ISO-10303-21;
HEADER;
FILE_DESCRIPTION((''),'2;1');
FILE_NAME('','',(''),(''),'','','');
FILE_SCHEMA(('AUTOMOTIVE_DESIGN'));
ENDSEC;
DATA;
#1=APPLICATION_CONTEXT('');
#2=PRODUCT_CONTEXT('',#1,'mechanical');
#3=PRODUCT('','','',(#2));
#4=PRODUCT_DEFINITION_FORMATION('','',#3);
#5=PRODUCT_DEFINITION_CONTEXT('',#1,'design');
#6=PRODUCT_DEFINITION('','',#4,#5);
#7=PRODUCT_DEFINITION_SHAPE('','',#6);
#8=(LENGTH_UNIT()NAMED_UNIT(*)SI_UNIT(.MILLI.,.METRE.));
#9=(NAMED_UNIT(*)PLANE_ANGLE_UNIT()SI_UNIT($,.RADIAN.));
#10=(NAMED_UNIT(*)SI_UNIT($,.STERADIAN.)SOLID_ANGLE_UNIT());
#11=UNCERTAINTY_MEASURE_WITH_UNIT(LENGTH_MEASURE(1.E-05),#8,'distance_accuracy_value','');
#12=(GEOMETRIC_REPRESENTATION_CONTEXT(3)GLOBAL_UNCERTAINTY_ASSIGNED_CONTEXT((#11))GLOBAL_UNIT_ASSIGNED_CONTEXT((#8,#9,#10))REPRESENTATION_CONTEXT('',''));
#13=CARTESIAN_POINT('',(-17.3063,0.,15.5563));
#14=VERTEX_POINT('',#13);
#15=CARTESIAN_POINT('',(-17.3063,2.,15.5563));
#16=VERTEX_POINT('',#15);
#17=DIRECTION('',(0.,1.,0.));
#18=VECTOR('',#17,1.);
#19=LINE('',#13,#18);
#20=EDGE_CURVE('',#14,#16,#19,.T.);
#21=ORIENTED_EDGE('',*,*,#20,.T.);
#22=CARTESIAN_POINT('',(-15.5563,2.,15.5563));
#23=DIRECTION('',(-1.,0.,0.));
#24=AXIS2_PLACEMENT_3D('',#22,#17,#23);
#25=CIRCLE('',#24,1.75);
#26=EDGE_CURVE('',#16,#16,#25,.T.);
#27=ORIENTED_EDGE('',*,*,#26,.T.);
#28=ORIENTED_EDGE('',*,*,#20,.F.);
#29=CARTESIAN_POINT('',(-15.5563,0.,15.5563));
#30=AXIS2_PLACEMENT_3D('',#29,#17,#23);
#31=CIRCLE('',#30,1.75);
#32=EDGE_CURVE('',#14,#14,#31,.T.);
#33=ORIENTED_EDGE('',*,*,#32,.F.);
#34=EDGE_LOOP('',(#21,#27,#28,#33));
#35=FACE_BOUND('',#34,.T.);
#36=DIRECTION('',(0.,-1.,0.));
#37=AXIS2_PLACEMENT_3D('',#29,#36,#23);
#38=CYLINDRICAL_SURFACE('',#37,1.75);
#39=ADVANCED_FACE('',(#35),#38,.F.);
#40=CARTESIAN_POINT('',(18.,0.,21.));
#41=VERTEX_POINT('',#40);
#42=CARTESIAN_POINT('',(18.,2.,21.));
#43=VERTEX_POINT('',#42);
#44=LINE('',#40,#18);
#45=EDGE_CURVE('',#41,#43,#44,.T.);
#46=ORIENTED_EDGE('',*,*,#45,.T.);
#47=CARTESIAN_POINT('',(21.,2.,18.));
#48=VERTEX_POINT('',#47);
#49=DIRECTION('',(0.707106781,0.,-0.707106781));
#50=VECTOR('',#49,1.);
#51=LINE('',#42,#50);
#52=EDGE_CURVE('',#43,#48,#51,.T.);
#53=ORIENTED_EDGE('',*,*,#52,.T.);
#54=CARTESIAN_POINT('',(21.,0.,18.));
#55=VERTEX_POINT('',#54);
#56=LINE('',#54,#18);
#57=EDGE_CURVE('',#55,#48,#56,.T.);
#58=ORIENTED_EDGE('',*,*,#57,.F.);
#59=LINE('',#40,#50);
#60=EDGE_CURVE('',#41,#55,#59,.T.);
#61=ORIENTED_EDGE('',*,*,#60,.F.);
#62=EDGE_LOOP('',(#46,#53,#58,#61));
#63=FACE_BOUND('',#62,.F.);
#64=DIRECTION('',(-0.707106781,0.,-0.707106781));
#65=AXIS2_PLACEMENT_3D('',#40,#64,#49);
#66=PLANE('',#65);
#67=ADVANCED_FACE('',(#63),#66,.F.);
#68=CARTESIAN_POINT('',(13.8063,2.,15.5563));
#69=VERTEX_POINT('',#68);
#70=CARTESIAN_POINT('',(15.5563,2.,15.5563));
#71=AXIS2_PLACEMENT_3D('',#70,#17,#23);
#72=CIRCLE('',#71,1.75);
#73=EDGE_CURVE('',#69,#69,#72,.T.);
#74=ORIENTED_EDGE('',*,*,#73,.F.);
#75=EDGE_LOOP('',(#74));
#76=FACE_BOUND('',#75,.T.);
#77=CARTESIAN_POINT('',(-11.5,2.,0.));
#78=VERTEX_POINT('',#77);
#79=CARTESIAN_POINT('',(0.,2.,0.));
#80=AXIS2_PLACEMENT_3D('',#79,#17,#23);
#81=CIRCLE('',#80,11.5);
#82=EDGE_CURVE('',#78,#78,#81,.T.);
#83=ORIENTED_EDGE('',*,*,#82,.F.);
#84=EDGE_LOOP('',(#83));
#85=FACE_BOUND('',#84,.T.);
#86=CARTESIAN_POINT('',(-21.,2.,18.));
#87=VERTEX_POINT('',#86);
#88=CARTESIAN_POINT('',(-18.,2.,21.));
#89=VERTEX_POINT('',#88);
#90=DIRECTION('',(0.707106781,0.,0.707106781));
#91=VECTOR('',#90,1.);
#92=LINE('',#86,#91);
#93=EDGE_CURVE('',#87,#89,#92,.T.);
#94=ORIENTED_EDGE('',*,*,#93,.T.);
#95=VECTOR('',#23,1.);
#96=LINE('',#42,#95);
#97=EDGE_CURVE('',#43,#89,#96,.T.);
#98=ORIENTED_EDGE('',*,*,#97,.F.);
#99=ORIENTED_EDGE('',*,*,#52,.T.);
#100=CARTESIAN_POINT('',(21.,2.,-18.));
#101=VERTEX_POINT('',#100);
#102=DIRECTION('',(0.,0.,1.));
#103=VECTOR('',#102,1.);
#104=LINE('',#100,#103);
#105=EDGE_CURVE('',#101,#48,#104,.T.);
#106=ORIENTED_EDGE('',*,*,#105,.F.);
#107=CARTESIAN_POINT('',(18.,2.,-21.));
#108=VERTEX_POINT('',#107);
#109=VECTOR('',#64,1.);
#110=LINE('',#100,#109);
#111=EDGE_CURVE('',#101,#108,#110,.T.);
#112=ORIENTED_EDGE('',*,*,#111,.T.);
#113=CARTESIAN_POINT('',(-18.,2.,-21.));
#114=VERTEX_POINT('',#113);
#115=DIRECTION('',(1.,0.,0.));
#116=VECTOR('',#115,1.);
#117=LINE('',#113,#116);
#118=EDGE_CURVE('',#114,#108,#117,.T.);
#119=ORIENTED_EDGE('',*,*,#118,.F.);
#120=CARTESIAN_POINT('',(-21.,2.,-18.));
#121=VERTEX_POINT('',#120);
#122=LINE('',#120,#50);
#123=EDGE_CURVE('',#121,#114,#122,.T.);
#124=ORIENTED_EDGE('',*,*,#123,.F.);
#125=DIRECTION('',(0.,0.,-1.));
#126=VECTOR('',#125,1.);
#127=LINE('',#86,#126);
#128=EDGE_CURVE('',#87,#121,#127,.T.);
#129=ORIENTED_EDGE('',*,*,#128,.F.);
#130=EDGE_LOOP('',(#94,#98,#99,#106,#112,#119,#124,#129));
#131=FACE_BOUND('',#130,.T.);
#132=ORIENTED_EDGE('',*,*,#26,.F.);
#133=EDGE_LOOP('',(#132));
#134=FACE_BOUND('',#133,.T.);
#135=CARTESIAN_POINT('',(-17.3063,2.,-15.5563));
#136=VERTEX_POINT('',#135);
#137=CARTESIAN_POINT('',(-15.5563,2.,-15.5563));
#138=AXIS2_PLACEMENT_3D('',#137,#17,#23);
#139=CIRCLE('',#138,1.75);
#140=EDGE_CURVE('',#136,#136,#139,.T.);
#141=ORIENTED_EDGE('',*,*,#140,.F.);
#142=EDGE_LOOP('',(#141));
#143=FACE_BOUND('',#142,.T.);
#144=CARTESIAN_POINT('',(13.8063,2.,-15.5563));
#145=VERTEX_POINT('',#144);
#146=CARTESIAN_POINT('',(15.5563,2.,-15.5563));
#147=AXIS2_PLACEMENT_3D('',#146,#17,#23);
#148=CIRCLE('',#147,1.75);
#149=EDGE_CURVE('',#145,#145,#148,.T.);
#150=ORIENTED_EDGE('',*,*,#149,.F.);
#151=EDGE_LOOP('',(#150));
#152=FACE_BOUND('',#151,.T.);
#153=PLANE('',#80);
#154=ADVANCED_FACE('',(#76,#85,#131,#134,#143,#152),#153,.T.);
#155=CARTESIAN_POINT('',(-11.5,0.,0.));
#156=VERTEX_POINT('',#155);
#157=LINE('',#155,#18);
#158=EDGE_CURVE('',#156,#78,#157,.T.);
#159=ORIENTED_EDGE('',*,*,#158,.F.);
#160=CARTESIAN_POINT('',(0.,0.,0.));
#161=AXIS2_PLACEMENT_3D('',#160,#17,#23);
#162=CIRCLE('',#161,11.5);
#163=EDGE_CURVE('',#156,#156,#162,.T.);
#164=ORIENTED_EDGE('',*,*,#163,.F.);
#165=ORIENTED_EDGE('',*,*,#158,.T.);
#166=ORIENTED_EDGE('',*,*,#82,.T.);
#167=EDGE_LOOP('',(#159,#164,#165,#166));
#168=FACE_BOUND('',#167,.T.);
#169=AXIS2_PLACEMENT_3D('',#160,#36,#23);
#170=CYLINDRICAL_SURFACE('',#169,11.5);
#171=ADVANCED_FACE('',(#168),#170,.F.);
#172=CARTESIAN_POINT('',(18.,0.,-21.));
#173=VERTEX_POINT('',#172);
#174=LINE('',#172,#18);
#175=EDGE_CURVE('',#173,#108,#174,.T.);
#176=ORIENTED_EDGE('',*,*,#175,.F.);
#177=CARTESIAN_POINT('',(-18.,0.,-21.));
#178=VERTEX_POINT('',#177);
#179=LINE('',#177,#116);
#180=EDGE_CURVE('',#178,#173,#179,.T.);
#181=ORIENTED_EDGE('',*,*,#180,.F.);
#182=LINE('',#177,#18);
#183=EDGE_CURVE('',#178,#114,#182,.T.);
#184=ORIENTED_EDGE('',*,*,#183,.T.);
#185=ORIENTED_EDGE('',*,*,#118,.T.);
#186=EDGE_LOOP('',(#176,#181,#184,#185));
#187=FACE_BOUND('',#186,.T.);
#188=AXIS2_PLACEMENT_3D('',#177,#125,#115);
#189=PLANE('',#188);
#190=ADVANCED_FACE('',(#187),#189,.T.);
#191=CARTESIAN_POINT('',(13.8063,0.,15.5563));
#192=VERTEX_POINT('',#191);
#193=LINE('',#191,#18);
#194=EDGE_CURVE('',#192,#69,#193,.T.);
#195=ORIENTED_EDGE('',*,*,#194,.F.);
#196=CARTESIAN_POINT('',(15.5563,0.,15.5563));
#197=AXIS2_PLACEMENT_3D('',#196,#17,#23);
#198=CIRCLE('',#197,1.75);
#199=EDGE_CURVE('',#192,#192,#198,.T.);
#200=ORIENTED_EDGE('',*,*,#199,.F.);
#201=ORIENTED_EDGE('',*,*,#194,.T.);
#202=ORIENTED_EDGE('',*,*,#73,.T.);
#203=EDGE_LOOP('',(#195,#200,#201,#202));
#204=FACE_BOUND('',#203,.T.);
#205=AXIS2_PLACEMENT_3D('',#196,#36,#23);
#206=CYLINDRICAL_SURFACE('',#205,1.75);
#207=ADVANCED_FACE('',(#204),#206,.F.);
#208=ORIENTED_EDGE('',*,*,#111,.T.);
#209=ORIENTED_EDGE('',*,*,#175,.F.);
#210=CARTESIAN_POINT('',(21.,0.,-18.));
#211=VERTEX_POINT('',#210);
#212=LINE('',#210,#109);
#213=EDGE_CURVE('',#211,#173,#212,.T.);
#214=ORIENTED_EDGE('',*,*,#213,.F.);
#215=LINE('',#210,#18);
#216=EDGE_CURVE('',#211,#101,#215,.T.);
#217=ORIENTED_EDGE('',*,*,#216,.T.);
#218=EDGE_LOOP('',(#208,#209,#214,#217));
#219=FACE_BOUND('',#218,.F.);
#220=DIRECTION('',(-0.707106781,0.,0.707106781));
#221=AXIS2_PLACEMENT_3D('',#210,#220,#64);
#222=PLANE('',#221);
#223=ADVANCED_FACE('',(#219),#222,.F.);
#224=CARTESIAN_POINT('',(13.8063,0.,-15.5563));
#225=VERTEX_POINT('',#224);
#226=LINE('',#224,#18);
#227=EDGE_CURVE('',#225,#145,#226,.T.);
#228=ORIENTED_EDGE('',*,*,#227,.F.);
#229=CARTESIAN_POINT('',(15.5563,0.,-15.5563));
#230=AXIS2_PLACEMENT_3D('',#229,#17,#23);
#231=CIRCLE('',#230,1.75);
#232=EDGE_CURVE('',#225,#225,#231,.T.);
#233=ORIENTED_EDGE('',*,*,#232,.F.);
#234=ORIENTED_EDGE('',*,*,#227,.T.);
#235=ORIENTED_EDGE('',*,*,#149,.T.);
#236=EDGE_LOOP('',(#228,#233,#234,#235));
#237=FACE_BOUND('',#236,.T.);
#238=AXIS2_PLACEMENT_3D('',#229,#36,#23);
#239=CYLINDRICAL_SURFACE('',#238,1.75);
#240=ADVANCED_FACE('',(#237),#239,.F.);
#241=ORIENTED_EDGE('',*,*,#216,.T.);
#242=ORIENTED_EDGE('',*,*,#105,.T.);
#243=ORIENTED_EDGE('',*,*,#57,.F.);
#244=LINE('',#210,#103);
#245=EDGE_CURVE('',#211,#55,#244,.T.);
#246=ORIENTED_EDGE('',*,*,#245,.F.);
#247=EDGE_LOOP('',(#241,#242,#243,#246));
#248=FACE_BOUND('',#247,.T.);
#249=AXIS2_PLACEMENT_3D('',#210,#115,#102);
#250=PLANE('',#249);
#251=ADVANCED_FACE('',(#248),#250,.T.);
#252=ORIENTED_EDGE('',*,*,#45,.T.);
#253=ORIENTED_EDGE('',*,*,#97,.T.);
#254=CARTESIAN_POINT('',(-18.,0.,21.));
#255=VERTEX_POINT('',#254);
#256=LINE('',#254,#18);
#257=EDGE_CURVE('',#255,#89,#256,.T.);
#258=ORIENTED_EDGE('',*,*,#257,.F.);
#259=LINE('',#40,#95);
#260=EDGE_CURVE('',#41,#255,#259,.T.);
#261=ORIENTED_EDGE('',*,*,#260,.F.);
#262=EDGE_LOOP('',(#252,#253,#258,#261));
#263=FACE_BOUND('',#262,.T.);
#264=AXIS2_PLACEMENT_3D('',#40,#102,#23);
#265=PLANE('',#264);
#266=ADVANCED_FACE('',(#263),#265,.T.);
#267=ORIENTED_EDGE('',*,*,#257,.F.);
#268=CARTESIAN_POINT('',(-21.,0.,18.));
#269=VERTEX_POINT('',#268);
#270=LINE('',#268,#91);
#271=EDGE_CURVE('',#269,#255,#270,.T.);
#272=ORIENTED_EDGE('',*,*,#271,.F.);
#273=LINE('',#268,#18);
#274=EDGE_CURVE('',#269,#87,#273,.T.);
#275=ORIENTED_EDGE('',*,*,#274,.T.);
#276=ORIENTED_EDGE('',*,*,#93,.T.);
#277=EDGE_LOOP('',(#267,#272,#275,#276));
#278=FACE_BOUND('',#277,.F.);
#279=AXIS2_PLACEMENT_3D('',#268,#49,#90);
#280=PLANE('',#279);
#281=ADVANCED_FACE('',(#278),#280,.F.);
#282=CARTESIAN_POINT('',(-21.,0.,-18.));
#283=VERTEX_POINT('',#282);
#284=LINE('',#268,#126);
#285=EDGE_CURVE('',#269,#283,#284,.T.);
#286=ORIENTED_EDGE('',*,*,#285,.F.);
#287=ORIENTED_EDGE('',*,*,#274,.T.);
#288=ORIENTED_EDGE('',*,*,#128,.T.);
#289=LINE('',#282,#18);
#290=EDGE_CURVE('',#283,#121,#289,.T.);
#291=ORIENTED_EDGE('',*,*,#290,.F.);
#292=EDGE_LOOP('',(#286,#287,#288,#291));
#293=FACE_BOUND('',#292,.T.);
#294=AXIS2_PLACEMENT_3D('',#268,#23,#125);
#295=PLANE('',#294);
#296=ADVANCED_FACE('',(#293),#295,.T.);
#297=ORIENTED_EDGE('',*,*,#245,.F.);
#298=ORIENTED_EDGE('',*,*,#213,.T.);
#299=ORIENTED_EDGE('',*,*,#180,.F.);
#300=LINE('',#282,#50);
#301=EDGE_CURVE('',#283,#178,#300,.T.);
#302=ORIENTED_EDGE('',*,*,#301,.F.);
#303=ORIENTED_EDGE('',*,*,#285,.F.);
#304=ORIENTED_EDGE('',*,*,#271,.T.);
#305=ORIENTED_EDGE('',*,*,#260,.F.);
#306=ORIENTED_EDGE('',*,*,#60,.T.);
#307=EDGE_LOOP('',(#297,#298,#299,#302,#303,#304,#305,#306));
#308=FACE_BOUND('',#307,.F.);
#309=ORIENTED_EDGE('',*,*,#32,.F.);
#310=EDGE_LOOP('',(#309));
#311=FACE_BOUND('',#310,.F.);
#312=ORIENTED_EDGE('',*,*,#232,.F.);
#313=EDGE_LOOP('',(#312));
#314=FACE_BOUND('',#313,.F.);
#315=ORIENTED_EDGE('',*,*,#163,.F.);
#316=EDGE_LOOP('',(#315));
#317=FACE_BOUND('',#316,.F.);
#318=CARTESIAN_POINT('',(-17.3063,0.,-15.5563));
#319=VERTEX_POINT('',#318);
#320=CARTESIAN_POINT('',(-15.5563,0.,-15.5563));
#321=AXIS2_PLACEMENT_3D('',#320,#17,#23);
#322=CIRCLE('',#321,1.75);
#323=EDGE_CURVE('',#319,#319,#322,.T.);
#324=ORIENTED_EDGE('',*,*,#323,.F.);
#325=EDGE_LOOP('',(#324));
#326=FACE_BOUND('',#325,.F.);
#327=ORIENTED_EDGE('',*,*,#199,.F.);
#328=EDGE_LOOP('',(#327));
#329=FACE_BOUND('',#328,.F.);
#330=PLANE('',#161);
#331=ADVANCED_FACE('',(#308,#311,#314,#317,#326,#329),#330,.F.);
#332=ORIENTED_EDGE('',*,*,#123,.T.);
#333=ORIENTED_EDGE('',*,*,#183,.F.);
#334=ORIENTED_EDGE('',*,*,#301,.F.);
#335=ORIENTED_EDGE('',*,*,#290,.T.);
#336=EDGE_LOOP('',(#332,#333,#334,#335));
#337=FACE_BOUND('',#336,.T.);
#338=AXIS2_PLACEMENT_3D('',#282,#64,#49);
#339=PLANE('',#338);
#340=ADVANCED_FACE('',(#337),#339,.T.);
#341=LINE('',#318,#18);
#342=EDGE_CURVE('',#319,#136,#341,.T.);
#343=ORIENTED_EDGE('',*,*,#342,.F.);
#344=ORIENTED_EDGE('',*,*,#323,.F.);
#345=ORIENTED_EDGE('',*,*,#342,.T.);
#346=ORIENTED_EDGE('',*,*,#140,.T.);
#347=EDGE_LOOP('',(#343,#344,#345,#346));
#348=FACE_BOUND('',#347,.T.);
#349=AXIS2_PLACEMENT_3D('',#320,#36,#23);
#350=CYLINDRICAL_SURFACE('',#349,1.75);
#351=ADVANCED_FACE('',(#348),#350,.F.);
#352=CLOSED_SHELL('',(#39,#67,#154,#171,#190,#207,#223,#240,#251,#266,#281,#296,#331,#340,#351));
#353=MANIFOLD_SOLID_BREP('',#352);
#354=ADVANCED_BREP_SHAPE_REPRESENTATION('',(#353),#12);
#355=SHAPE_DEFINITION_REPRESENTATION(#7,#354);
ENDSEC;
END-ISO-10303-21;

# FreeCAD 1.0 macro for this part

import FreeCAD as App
import Part
import Sketcher

V = App.Vector

doc = App.newDocument("Part")
body = doc.addObject("PartDesign::Body", "Body")

# Sketch on XZ plane
sketch1 = body.newObject("Sketcher::SketchObject", "Sketch")
sketch1.AttachmentSupport = (doc.getObject("XZ_Plane"), [""])
sketch1.MapMode = "FlatFace"
sketch1.addGeometry(Part.LineSegment(V(18, -21, 0), V(-18, -21, 0)), False)
sketch1.addGeometry(Part.LineSegment(V(-18, -21, 0), V(-21, -18, 0)), False)
sketch1.addGeometry(Part.LineSegment(V(-21, -18, 0), V(-21, 18, 0)), False)
sketch1.addGeometry(Part.LineSegment(V(-21, 18, 0), V(-18, 21, 0)), False)
sketch1.addGeometry(Part.LineSegment(V(-18, 21, 0), V(18, 21, 0)), False)
sketch1.addGeometry(Part.LineSegment(V(18, 21, 0), V(21, 18, 0)), False)
sketch1.addGeometry(Part.LineSegment(V(21, 18, 0), V(21, -18, 0)), False)
sketch1.addGeometry(Part.LineSegment(V(21, -18, 0), V(18, -21, 0)), False)
sketch1.addGeometry(Part.Circle(V(15.6, -15.6, 0), V(0, 0, 1), 1.8), False)
sketch1.addGeometry(Part.Circle(V(-15.6, -15.6, 0), V(0, 0, 1), 1.8), False)
sketch1.addGeometry(Part.Circle(V(15.6, 15.6, 0), V(0, 0, 1), 1.8), False)
sketch1.addGeometry(Part.Circle(V(0, 0, 0), V(0, 0, 1), 11.5), False)
sketch1.addGeometry(Part.Circle(V(-15.6, 15.6, 0), V(0, 0, 1), 1.8), False)
sketch1.addConstraint(Sketcher.Constraint("Coincident", 0, 2, 1, 1))
sketch1.addConstraint(Sketcher.Constraint("Coincident", 1, 2, 2, 1))
sketch1.addConstraint(Sketcher.Constraint("Coincident", 2, 2, 3, 1))
sketch1.addConstraint(Sketcher.Constraint("Coincident", 3, 2, 4, 1))
sketch1.addConstraint(Sketcher.Constraint("Coincident", 4, 2, 5, 1))
sketch1.addConstraint(Sketcher.Constraint("Coincident", 5, 2, 6, 1))
sketch1.addConstraint(Sketcher.Constraint("Coincident", 6, 2, 7, 1))
sketch1.addConstraint(Sketcher.Constraint("Coincident", 7, 2, 0, 1))
sketch1.addConstraint(Sketcher.Constraint("Horizontal", 0))
sketch1.addConstraint(Sketcher.Constraint("Vertical", 2))
sketch1.addConstraint(Sketcher.Constraint("Horizontal", 4))
sketch1.addConstraint(Sketcher.Constraint("Vertical", 6))
sketch1.addConstraint(Sketcher.Constraint("Coincident", 11, 3, -1, 1))
sketch1.addConstraint(Sketcher.Constraint("Equal", 8, 9))
sketch1.addConstraint(Sketcher.Constraint("Equal", 9, 10))
sketch1.addConstraint(Sketcher.Constraint("Equal", 10, 12))
sketch1.addConstraint(Sketcher.Constraint("Symmetric", 9, 3, 10, 3, -1, 1))
sketch1.addConstraint(Sketcher.Constraint("Symmetric", 8, 3, 12, 3, -1, 1))
sketch1.addConstraint(Sketcher.Constraint("Symmetric", 0, 2, 4, 2, -1, 1))
sketch1.addConstraint(Sketcher.Constraint("Symmetric", 1, 2, 5, 2, -1, 1))
sketch1.addConstraint(Sketcher.Constraint("Symmetric", 8, 3, 9, 3, -2))
sketch1.addConstraint(Sketcher.Constraint("Perpendicular", 1, 3))
sketch1.addConstraint(Sketcher.Constraint("Perpendicular", 5, 7))
sketch1.addConstraint(Sketcher.Constraint("Horizontal", 2, 2, 5, 2))
sketch1.addConstraint(Sketcher.Constraint("Horizontal", 1, 2, 6, 2))
sketch1.addConstraint(Sketcher.Constraint("Vertical", 0, 2, 3, 2))
sketch1.addConstraint(Sketcher.Constraint("Equal", 4, 2))
sketch1.addConstraint(Sketcher.Constraint("Diameter", 11, 23.0))
sketch1.addConstraint(Sketcher.Constraint("Diameter", 8, 3.5))
sketch1.addConstraint(Sketcher.Constraint("DistanceX", 1, 2, 0, 2, 3.0))
sketch1.addConstraint(Sketcher.Constraint("DistanceX", 0, 2, 0, 1, 36.0))
sketch1.addConstraint(Sketcher.Constraint("DistanceX", -1, 1, 8, 3, 15.5563))
sketch1.addConstraint(Sketcher.Constraint("DistanceY", 8, 3, -1, 1, 15.5563))
pad1 = body.newObject("PartDesign::Pad", "Pad")
pad1.Profile = sketch1
pad1.Length = 2
pad1.Reversed = True

doc.recompute()
